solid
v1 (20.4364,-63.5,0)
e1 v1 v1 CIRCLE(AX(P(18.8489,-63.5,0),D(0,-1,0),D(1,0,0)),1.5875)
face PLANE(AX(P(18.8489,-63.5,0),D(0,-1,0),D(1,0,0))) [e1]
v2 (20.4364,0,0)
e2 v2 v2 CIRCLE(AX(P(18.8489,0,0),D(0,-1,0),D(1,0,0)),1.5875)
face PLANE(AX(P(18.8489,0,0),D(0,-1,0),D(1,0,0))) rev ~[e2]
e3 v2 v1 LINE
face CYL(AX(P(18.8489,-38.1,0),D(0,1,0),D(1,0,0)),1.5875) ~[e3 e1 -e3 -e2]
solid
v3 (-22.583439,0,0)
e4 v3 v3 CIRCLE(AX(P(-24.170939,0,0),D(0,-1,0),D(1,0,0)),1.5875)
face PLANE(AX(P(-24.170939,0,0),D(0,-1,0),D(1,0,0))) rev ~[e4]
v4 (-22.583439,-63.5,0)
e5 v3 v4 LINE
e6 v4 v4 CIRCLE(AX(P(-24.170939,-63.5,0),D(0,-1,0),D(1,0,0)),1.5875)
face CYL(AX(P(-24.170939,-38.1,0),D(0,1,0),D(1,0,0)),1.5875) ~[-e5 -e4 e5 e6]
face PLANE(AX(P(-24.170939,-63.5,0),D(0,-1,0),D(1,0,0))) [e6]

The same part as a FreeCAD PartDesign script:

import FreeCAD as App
import Part
import Sketcher
Q = App.Units.Quantity

doc = App.newDocument("Part")
body = doc.addObject("PartDesign::Body", "Body")
body.AllowCompound = True

sketch1 = doc.addObject("Sketcher::SketchObject", "Sketch")
body.addObject(sketch1)
sketch1.AttachmentSupport = (doc.XZ_Plane, [""])
sketch1.MapMode = "FlatFace"
sketch1.addGeometry([
    Part.Circle(App.Vector(-24.170939, 0, 0), App.Vector(0, 0, 1), 1.5875),
    Part.Circle(App.Vector(18.8489, 0, 0), App.Vector(0, 0, 1), 1.5875),
], False)
sketch1.addConstraint([
    Sketcher.Constraint("Equal", 0, 1),
    Sketcher.Constraint("PointOnObject", 0, 3, -1),
    Sketcher.Constraint("PointOnObject", 1, 3, -1),
    Sketcher.Constraint("Diameter", 0, Q("0.125 in")),
    Sketcher.Constraint("DistanceX", -1, 1, 1, 3, Q("18.8489 mm")),
    Sketcher.Constraint("DistanceX", 0, 3, -1, 1, Q("24.170939 mm")),
])
pad1 = doc.addObject("PartDesign::Pad", "Pad")
body.addObject(pad1)
pad1.Profile = sketch1
pad1.Length = Q("1.5 in")

sketch2 = doc.addObject("Sketcher::SketchObject", "Sketch001")
body.addObject(sketch2)
sketch2.AttachmentSupport = (doc.XZ_Plane, [""])
sketch2.MapMode = "FlatFace"
sketch2.AttachmentOffset = App.Placement(App.Vector(0, 0, 1.5 * 25.4), App.Rotation())
sketch2.addGeometry(Part.Circle(App.Vector(18.8489, 0, 0), App.Vector(0, 0, 1), 1.5875), False)
sketch2.addConstraint([
    Sketcher.Constraint("PointOnObject", 0, 3, -1),
    Sketcher.Constraint("Diameter", 0, Q("0.125 in")),
    Sketcher.Constraint("DistanceX", -1, 1, 0, 3, Q("18.8489 mm")),
])
pad2 = doc.addObject("PartDesign::Pad", "Pad001")
body.addObject(pad2)
pad2.Profile = sketch2
pad2.Length = Q("1 in")

sketch3 = doc.addObject("Sketcher::SketchObject", "Sketch002")
body.addObject(sketch3)
sketch3.AttachmentSupport = (doc.XZ_Plane, [""])
sketch3.MapMode = "FlatFace"
sketch3.AttachmentOffset = App.Placement(App.Vector(0, 0, 1.5 * 25.4), App.Rotation())
sketch3.addGeometry(Part.Circle(App.Vector(-24.170939, 0, 0), App.Vector(0, 0, 1), 1.5875), False)
sketch3.addConstraint([
    Sketcher.Constraint("PointOnObject", 0, 3, -1),
    Sketcher.Constraint("Diameter", 0, Q("0.125 in")),
    Sketcher.Constraint("DistanceX", 0, 3, -1, 1, Q("24.170939 mm")),
])
pad3 = doc.addObject("PartDesign::Pad", "Pad002")
body.addObject(pad3)
pad3.Profile = sketch3
pad3.Length = Q("1 in")

doc.recompute()
